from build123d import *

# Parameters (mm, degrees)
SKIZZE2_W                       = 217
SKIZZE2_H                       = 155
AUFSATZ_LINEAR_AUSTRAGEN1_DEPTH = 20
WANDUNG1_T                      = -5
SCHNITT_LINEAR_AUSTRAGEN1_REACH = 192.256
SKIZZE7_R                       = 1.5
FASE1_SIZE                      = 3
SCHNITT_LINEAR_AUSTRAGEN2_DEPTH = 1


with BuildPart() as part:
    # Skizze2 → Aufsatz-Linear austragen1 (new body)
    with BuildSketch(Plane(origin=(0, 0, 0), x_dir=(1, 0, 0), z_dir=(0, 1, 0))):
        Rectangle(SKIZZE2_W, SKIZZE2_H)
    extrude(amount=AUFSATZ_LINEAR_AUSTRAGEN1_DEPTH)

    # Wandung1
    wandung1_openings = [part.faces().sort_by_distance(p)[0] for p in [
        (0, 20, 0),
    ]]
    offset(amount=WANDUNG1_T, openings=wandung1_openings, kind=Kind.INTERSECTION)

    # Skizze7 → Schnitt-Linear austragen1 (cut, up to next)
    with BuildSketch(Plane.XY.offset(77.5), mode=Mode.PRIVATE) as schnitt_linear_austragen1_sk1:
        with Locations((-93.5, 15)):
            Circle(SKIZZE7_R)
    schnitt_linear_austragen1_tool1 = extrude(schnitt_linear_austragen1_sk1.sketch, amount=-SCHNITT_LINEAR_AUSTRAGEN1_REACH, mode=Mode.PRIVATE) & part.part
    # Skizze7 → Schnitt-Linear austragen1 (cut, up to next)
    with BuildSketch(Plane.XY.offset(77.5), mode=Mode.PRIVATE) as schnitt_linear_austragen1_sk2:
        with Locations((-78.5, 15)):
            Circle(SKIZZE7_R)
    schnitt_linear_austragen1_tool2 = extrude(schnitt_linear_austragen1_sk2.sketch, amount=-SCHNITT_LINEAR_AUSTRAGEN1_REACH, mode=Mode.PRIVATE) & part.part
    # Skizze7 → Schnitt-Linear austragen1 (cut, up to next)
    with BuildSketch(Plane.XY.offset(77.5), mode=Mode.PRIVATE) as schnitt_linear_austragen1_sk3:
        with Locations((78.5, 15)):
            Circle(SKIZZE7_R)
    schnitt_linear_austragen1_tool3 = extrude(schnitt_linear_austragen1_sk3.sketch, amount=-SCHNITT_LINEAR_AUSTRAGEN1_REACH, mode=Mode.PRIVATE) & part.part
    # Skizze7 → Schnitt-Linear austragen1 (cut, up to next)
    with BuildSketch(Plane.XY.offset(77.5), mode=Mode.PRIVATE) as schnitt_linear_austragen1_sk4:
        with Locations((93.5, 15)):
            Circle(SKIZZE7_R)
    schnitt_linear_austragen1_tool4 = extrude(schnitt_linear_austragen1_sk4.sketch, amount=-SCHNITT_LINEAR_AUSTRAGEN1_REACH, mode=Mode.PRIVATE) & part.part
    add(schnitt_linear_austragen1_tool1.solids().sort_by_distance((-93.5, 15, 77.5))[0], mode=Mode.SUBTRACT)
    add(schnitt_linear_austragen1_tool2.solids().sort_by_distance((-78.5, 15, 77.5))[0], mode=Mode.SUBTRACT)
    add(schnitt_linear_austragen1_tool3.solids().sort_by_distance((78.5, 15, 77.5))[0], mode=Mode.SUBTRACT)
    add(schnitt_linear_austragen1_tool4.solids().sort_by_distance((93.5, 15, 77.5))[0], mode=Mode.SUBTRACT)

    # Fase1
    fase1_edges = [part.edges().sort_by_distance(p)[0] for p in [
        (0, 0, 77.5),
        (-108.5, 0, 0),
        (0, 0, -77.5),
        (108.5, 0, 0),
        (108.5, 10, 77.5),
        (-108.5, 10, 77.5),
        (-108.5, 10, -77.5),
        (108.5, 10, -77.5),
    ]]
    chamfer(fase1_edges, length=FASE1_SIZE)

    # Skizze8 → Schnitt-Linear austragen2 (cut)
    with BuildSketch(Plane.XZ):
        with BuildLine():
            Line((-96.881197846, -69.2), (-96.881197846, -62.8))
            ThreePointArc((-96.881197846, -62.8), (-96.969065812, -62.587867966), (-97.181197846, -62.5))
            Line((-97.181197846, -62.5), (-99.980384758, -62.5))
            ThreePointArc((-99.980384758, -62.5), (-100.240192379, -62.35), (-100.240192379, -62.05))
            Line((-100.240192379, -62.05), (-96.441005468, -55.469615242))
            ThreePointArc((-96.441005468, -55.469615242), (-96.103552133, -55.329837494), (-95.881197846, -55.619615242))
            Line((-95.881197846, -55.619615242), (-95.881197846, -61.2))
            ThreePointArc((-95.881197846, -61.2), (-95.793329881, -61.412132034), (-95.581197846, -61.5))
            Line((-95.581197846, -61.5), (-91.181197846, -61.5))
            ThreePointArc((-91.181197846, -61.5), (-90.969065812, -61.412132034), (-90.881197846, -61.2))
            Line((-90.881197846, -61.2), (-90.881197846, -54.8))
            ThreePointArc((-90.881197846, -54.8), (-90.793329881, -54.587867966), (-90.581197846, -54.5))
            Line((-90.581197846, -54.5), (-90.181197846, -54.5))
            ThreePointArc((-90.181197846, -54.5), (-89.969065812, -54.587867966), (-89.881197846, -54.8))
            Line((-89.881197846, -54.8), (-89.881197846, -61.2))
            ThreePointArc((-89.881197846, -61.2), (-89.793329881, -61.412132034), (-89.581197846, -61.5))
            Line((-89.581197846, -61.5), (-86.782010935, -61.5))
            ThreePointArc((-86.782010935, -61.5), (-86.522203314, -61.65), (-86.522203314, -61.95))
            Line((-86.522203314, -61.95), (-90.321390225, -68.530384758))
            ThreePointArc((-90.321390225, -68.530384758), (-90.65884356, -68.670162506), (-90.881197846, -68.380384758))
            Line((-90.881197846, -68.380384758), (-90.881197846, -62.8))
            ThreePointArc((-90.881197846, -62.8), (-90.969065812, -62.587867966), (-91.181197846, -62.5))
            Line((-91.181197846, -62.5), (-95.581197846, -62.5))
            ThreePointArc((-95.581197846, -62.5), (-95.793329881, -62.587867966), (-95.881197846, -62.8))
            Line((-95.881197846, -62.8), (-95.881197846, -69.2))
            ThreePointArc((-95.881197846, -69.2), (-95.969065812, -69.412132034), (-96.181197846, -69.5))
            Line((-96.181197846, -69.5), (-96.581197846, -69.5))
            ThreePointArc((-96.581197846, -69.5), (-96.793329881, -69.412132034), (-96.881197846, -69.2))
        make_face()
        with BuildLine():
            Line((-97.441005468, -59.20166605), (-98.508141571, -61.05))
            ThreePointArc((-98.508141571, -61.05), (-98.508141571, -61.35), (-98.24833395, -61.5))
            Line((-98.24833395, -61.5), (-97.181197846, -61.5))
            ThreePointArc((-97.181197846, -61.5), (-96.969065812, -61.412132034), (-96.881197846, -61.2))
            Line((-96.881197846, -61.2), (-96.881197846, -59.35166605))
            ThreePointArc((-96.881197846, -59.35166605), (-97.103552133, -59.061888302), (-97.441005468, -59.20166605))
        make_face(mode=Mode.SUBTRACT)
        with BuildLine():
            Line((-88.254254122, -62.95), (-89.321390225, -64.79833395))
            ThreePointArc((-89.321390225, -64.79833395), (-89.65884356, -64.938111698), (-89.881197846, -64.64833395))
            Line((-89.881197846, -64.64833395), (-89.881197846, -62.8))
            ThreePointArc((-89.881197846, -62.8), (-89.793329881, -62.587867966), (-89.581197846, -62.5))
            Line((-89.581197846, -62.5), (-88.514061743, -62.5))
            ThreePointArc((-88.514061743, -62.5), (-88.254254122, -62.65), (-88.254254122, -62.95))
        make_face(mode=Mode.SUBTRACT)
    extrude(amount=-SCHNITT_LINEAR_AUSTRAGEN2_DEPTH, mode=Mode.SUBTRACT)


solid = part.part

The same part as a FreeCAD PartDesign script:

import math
import FreeCAD as App
import Part
import Sketcher
from FreeCAD import Vector
Q = App.Units.Quantity


def edges_at(feature, points):
    """Names of the edges that pass closest to the given points."""
    edges = feature.Shape.Edges
    near = lambda p: min(range(len(edges)), key=lambda i: edges[i].distToShape(Part.Vertex(*p))[0])
    return sorted({f"Edge{near(p) + 1}" for p in points})


def faces_at(feature, points):
    """Names of the faces that lie closest to the given points."""
    faces = feature.Shape.Faces
    near = lambda p: min(range(len(faces)), key=lambda i: faces[i].distToShape(Part.Vertex(*p))[0])
    return sorted({f"Face{near(p) + 1}" for p in points})


def add_polygon(sketch, points):
    """Adds a closed chain of lines whose ends are joined by coincident constraints."""
    first, n = sketch.GeometryCount, len(points)
    for a, b in zip(points, points[1:] + points[:1]):
        sketch.addGeometry(Part.LineSegment(App.Vector(*a, 0), App.Vector(*b, 0)), False)
    for i in range(n):
        sketch.addConstraint(Sketcher.Constraint("Coincident", first + i, 2, first + (i + 1) % n, 1))

doc = App.newDocument("Part")
body = doc.addObject("PartDesign::Body", "Body")

sketch1 = doc.addObject("Sketcher::SketchObject", "Sketch")
body.addObject(sketch1)
sketch1.AttachmentSupport = (doc.XZ_Plane, [""])
sketch1.MapMode = "FlatFace"
add_polygon(sketch1, [(-108.5, -77.5), (-108.5, 77.5), (108.5, 77.5), (108.5, -77.5)])
sketch1.addConstraint(Sketcher.Constraint("Vertical", 0))
sketch1.addConstraint(Sketcher.Constraint("Horizontal", 1))
sketch1.addConstraint(Sketcher.Constraint("Vertical", 2))
sketch1.addConstraint(Sketcher.Constraint("Horizontal", 3))
sketch1.addConstraint(Sketcher.Constraint("Symmetric", 0, 2, 2, 2, -1, 1))
sketch1.addConstraint(Sketcher.Constraint("DistanceX", 1, 1, 1, 2, Q("217 mm")))
sketch1.addConstraint(Sketcher.Constraint("DistanceY", 0, 1, 0, 2, Q("155 mm")))
pad1 = doc.addObject("PartDesign::Pad", "Pad")
body.addObject(pad1)
pad1.Profile = sketch1
pad1.Length = 20
pad1.Reversed = True
doc.recompute()

thickness = doc.addObject("PartDesign::Thickness", "Thickness")
body.addObject(thickness)
thickness.Base = (pad1, faces_at(pad1, [(0, 20, 0)]))
thickness.Value = 5
thickness.Reversed = True
thickness.Join = "Intersection"

sketch2 = doc.addObject("Sketcher::SketchObject", "Sketch001")
body.addObject(sketch2)
sketch2.AttachmentSupport = (doc.XY_Plane, [""])
sketch2.MapMode = "FlatFace"
sketch2.AttachmentOffset = App.Placement(Vector(0, 0, 77.5), App.Rotation())
sketch2.addGeometry(Part.Circle(Vector(-93.5, 15, 0), Vector(0, 0, 1), 1.5), False)
sketch2.addConstraint(Sketcher.Constraint("Diameter", 0, Q("3 mm")))
sketch2.addConstraint(Sketcher.Constraint("DistanceY", -1, 1, 0, 3, Q("15 mm")))
sketch2.addConstraint(Sketcher.Constraint("DistanceX", 0, 3, -1, 1, Q("93.5 mm")))
pocket1 = doc.addObject("PartDesign::Pocket", "Pocket")
body.addObject(pocket1)
pocket1.Profile = sketch2
pocket1.Type = "UpToFirst"

sketch3 = doc.addObject("Sketcher::SketchObject", "Sketch002")
body.addObject(sketch3)
sketch3.AttachmentSupport = (doc.XY_Plane, [""])
sketch3.MapMode = "FlatFace"
sketch3.AttachmentOffset = App.Placement(Vector(0, 0, 77.5), App.Rotation())
sketch3.addGeometry(Part.Circle(Vector(-78.5, 15, 0), Vector(0, 0, 1), 1.5), False)
sketch3.addConstraint(Sketcher.Constraint("Diameter", 0, Q("3 mm")))
sketch3.addConstraint(Sketcher.Constraint("DistanceY", -1, 1, 0, 3, Q("15 mm")))
sketch3.addConstraint(Sketcher.Constraint("DistanceX", 0, 3, -1, 1, Q("78.5 mm")))
pocket2 = doc.addObject("PartDesign::Pocket", "Pocket001")
body.addObject(pocket2)
pocket2.Profile = sketch3
pocket2.Type = "UpToFirst"

sketch4 = doc.addObject("Sketcher::SketchObject", "Sketch003")
body.addObject(sketch4)
sketch4.AttachmentSupport = (doc.XY_Plane, [""])
sketch4.MapMode = "FlatFace"
sketch4.AttachmentOffset = App.Placement(Vector(0, 0, 77.5), App.Rotation())
sketch4.addGeometry(Part.Circle(Vector(78.5, 15, 0), Vector(0, 0, 1), 1.5), False)
sketch4.addConstraint(Sketcher.Constraint("Diameter", 0, Q("3 mm")))
sketch4.addConstraint(Sketcher.Constraint("DistanceY", -1, 1, 0, 3, Q("15 mm")))
sketch4.addConstraint(Sketcher.Constraint("DistanceX", -1, 1, 0, 3, Q("78.5 mm")))
pocket3 = doc.addObject("PartDesign::Pocket", "Pocket002")
body.addObject(pocket3)
pocket3.Profile = sketch4
pocket3.Type = "UpToFirst"

sketch5 = doc.addObject("Sketcher::SketchObject", "Sketch004")
body.addObject(sketch5)
sketch5.AttachmentSupport = (doc.XY_Plane, [""])
sketch5.MapMode = "FlatFace"
sketch5.AttachmentOffset = App.Placement(Vector(0, 0, 77.5), App.Rotation())
sketch5.addGeometry(Part.Circle(Vector(93.5, 15, 0), Vector(0, 0, 1), 1.5), False)
sketch5.addConstraint(Sketcher.Constraint("Diameter", 0, Q("3 mm")))
sketch5.addConstraint(Sketcher.Constraint("DistanceY", -1, 1, 0, 3, Q("15 mm")))
sketch5.addConstraint(Sketcher.Constraint("DistanceX", -1, 1, 0, 3, Q("93.5 mm")))
pocket4 = doc.addObject("PartDesign::Pocket", "Pocket003")
body.addObject(pocket4)
pocket4.Profile = sketch5
pocket4.Type = "UpToFirst"
doc.recompute()

chamfer = doc.addObject("PartDesign::Chamfer", "Chamfer")
body.addObject(chamfer)
chamfer.Base = (pocket4, edges_at(pocket4, [
    (0, 0, 77.5),
    (-108.5, 0, 0),
    (0, 0, -77.5),
    (108.5, 0, 0),
    (108.5, 10, 77.5),
    (-108.5, 10, 77.5),
    (-108.5, 10, -77.5),
    (108.5, 10, -77.5),
]))
chamfer.Size = 3

sketch6 = doc.addObject("Sketcher::SketchObject", "Sketch005")
body.addObject(sketch6)
sketch6.AttachmentSupport = (doc.XZ_Plane, [""])
sketch6.MapMode = "FlatFace"
sketch6.addGeometry(Part.LineSegment(Vector(-96.881198, -62.8, 0), Vector(-96.881198, -69.2, 0)), False)
sketch6.addGeometry(Part.ArcOfCircle(Part.Circle(Vector(-96.581198, -69.2, 0), Vector(0, 0, 1), 0.3), math.radians(180), math.radians(270)), False)
sketch6.addGeometry(Part.LineSegment(Vector(-96.581198, -69.5, 0), Vector(-96.181198, -69.5, 0)), False)
sketch6.addGeometry(Part.ArcOfCircle(Part.Circle(Vector(-96.181198, -69.2, 0), Vector(0, 0, 1), 0.3), math.radians(-90), math.radians(0)), False)
sketch6.addGeometry(Part.LineSegment(Vector(-95.881198, -69.2, 0), Vector(-95.881198, -62.8, 0)), False)
sketch6.addGeometry(Part.ArcOfCircle(Part.Circle(Vector(-95.581198, -62.8, 0), Vector(0, 0, 1), 0.3), math.radians(90), math.radians(180)), False)
sketch6.addGeometry(Part.LineSegment(Vector(-95.581198, -62.5, 0), Vector(-91.181198, -62.5, 0)), False)
sketch6.addGeometry(Part.ArcOfCircle(Part.Circle(Vector(-91.181198, -62.8, 0), Vector(0, 0, 1), 0.3), math.radians(0), math.radians(90)), False)
sketch6.addGeometry(Part.LineSegment(Vector(-90.881198, -62.8, 0), Vector(-90.881198, -68.380385, 0)), False)
sketch6.addGeometry(Part.ArcOfCircle(Part.Circle(Vector(-90.581198, -68.380385, 0), Vector(0, 0, 1), 0.3), math.radians(180), math.radians(330)), False)
sketch6.addGeometry(Part.LineSegment(Vector(-90.32139, -68.530385, 0), Vector(-86.522203, -61.95, 0)), False)
sketch6.addGeometry(Part.ArcOfCircle(Part.Circle(Vector(-86.782011, -61.8, 0), Vector(0, 0, 1), 0.3), math.radians(-30), math.radians(90)), False)
sketch6.addGeometry(Part.LineSegment(Vector(-86.782011, -61.5, 0), Vector(-89.581198, -61.5, 0)), False)
sketch6.addGeometry(Part.ArcOfCircle(Part.Circle(Vector(-89.581198, -61.2, 0), Vector(0, 0, 1), 0.3), math.radians(180), math.radians(270)), False)
sketch6.addGeometry(Part.LineSegment(Vector(-89.881198, -61.2, 0), Vector(-89.881198, -54.8, 0)), False)
sketch6.addGeometry(Part.ArcOfCircle(Part.Circle(Vector(-90.181198, -54.8, 0), Vector(0, 0, 1), 0.3), math.radians(0), math.radians(90)), False)
sketch6.addGeometry(Part.LineSegment(Vector(-90.181198, -54.5, 0), Vector(-90.581198, -54.5, 0)), False)
sketch6.addGeometry(Part.ArcOfCircle(Part.Circle(Vector(-90.581198, -54.8, 0), Vector(0, 0, 1), 0.3), math.radians(90), math.radians(180)), False)
sketch6.addGeometry(Part.LineSegment(Vector(-90.881198, -54.8, 0), Vector(-90.881198, -61.2, 0)), False)
sketch6.addGeometry(Part.ArcOfCircle(Part.Circle(Vector(-91.181198, -61.2, 0), Vector(0, 0, 1), 0.3), math.radians(-90), math.radians(0)), False)
sketch6.addGeometry(Part.LineSegment(Vector(-91.181198, -61.5, 0), Vector(-95.581198, -61.5, 0)), False)
sketch6.addGeometry(Part.ArcOfCircle(Part.Circle(Vector(-95.581198, -61.2, 0), Vector(0, 0, 1), 0.3), math.radians(180), math.radians(270)), False)
sketch6.addGeometry(Part.LineSegment(Vector(-95.881198, -61.2, 0), Vector(-95.881198, -55.619615, 0)), False)
sketch6.addGeometry(Part.ArcOfCircle(Part.Circle(Vector(-96.181198, -55.619615, 0), Vector(0, 0, 1), 0.3), math.radians(0), math.radians(150)), False)
sketch6.addGeometry(Part.LineSegment(Vector(-96.441005, -55.469615, 0), Vector(-100.240192, -62.05, 0)), False)
sketch6.addGeometry(Part.ArcOfCircle(Part.Circle(Vector(-99.980385, -62.2, 0), Vector(0, 0, 1), 0.3), math.radians(150), math.radians(270)), False)
sketch6.addGeometry(Part.LineSegment(Vector(-99.980385, -62.5, 0), Vector(-97.181198, -62.5, 0)), False)
sketch6.addGeometry(Part.ArcOfCircle(Part.Circle(Vector(-97.181198, -62.8, 0), Vector(0, 0, 1), 0.3), math.radians(0), math.radians(90)), False)
sketch6.addGeometry(Part.LineSegment(Vector(-88.254254, -62.95, 0), Vector(-89.32139, -64.798334, 0)), False)
sketch6.addGeometry(Part.ArcOfCircle(Part.Circle(Vector(-89.581198, -64.648334, 0), Vector(0, 0, 1), 0.3), math.radians(180), math.radians(330)), False)
sketch6.addGeometry(Part.LineSegment(Vector(-89.881198, -64.648334, 0), Vector(-89.881198, -62.8, 0)), False)
sketch6.addGeometry(Part.ArcOfCircle(Part.Circle(Vector(-89.581198, -62.8, 0), Vector(0, 0, 1), 0.3), math.radians(90), math.radians(180)), False)
sketch6.addGeometry(Part.LineSegment(Vector(-89.581198, -62.5, 0), Vector(-88.514062, -62.5, 0)), False)
sketch6.addGeometry(Part.ArcOfCircle(Part.Circle(Vector(-88.514062, -62.8, 0), Vector(0, 0, 1), 0.3), math.radians(-30), math.radians(90)), False)
sketch6.addGeometry(Part.ArcOfCircle(Part.Circle(Vector(-97.181198, -59.351666, 0), Vector(0, 0, 1), 0.3), math.radians(0), math.radians(150)), False)
sketch6.addGeometry(Part.LineSegment(Vector(-96.881198, -59.351666, 0), Vector(-96.881198, -61.2, 0)), False)
sketch6.addGeometry(Part.ArcOfCircle(Part.Circle(Vector(-97.181198, -61.2, 0), Vector(0, 0, 1), 0.3), math.radians(-90), math.radians(0)), False)
sketch6.addGeometry(Part.LineSegment(Vector(-97.181198, -61.5, 0), Vector(-98.248334, -61.5, 0)), False)
sketch6.addGeometry(Part.ArcOfCircle(Part.Circle(Vector(-98.248334, -61.2, 0), Vector(0, 0, 1), 0.3), math.radians(150), math.radians(270)), False)
sketch6.addGeometry(Part.LineSegment(Vector(-98.508142, -61.05, 0), Vector(-97.441005, -59.201666, 0)), False)
sketch6.addConstraint(Sketcher.Constraint("Tangent", 0, 2, 1, 1))
sketch6.addConstraint(Sketcher.Constraint("Tangent", 1, 2, 2, 1))
sketch6.addConstraint(Sketcher.Constraint("Tangent", 2, 2, 3, 1))
sketch6.addConstraint(Sketcher.Constraint("Tangent", 3, 2, 4, 1))
sketch6.addConstraint(Sketcher.Constraint("Tangent", 4, 2, 5, 2))
sketch6.addConstraint(Sketcher.Constraint("Tangent", 5, 1, 6, 1))
sketch6.addConstraint(Sketcher.Constraint("Tangent", 6, 2, 7, 2))
sketch6.addConstraint(Sketcher.Constraint("Tangent", 7, 1, 8, 1))
sketch6.addConstraint(Sketcher.Constraint("Tangent", 8, 2, 9, 1))
sketch6.addConstraint(Sketcher.Constraint("Tangent", 9, 2, 10, 1))
sketch6.addConstraint(Sketcher.Constraint("Tangent", 10, 2, 11, 1))
sketch6.addConstraint(Sketcher.Constraint("Tangent", 11, 2, 12, 1))
sketch6.addConstraint(Sketcher.Constraint("Tangent", 12, 2, 13, 2))
sketch6.addConstraint(Sketcher.Constraint("Tangent", 13, 1, 14, 1))
sketch6.addConstraint(Sketcher.Constraint("Tangent", 14, 2, 15, 1))
sketch6.addConstraint(Sketcher.Constraint("Tangent", 15, 2, 16, 1))
sketch6.addConstraint(Sketcher.Constraint("Tangent", 16, 2, 17, 1))
sketch6.addConstraint(Sketcher.Constraint("Tangent", 17, 2, 18, 1))
sketch6.addConstraint(Sketcher.Constraint("Tangent", 18, 2, 19, 2))
sketch6.addConstraint(Sketcher.Constraint("Tangent", 19, 1, 20, 1))
sketch6.addConstraint(Sketcher.Constraint("Tangent", 20, 2, 21, 2))
sketch6.addConstraint(Sketcher.Constraint("Tangent", 21, 1, 22, 1))
sketch6.addConstraint(Sketcher.Constraint("Tangent", 22, 2, 23, 1))
sketch6.addConstraint(Sketcher.Constraint("Tangent", 23, 2, 24, 1))
sketch6.addConstraint(Sketcher.Constraint("Tangent", 24, 2, 25, 1))
sketch6.addConstraint(Sketcher.Constraint("Tangent", 25, 2, 26, 1))
sketch6.addConstraint(Sketcher.Constraint("Tangent", 26, 2, 27, 2))
sketch6.addConstraint(Sketcher.Constraint("Tangent", 27, 1, 0, 1))
sketch6.addConstraint(Sketcher.Constraint("Tangent", 28, 2, 29, 2))
sketch6.addConstraint(Sketcher.Constraint("Tangent", 29, 1, 30, 1))
sketch6.addConstraint(Sketcher.Constraint("Tangent", 30, 2, 31, 2))
sketch6.addConstraint(Sketcher.Constraint("Tangent", 31, 1, 32, 1))
sketch6.addConstraint(Sketcher.Constraint("Tangent", 32, 2, 33, 2))
sketch6.addConstraint(Sketcher.Constraint("Tangent", 33, 1, 28, 1))
sketch6.addConstraint(Sketcher.Constraint("Tangent", 34, 1, 35, 1))
sketch6.addConstraint(Sketcher.Constraint("Tangent", 35, 2, 36, 2))
sketch6.addConstraint(Sketcher.Constraint("Tangent", 36, 1, 37, 1))
sketch6.addConstraint(Sketcher.Constraint("Tangent", 37, 2, 38, 2))
sketch6.addConstraint(Sketcher.Constraint("Tangent", 38, 1, 39, 1))
sketch6.addConstraint(Sketcher.Constraint("Tangent", 39, 2, 34, 2))
sketch6.addConstraint(Sketcher.Constraint("Vertical", 0))
sketch6.addConstraint(Sketcher.Constraint("Horizontal", 2))
sketch6.addConstraint(Sketcher.Constraint("Vertical", 4))
sketch6.addConstraint(Sketcher.Constraint("Horizontal", 6))
sketch6.addConstraint(Sketcher.Constraint("Vertical", 8))
sketch6.addConstraint(Sketcher.Constraint("Horizontal", 12))
sketch6.addConstraint(Sketcher.Constraint("Vertical", 14))
sketch6.addConstraint(Sketcher.Constraint("Horizontal", 16))
sketch6.addConstraint(Sketcher.Constraint("Vertical", 18))
sketch6.addConstraint(Sketcher.Constraint("Horizontal", 20))
sketch6.addConstraint(Sketcher.Constraint("Vertical", 22))
sketch6.addConstraint(Sketcher.Constraint("Horizontal", 26))
sketch6.addConstraint(Sketcher.Constraint("Vertical", 30))
sketch6.addConstraint(Sketcher.Constraint("Horizontal", 32))
sketch6.addConstraint(Sketcher.Constraint("Vertical", 35))
sketch6.addConstraint(Sketcher.Constraint("Horizontal", 37))
sketch6.addConstraint(Sketcher.Constraint("Equal", 1, 3))
sketch6.addConstraint(Sketcher.Constraint("Equal", 3, 5))
sketch6.addConstraint(Sketcher.Constraint("Equal", 5, 7))
sketch6.addConstraint(Sketcher.Constraint("Equal", 7, 9))
sketch6.addConstraint(Sketcher.Constraint("Equal", 9, 11))
sketch6.addConstraint(Sketcher.Constraint("Equal", 11, 13))
sketch6.addConstraint(Sketcher.Constraint("Equal", 13, 15))
sketch6.addConstraint(Sketcher.Constraint("Equal", 15, 17))
sketch6.addConstraint(Sketcher.Constraint("Equal", 17, 19))
sketch6.addConstraint(Sketcher.Constraint("Equal", 19, 21))
sketch6.addConstraint(Sketcher.Constraint("Equal", 21, 23))
sketch6.addConstraint(Sketcher.Constraint("Equal", 23, 25))
sketch6.addConstraint(Sketcher.Constraint("Equal", 25, 27))
sketch6.addConstraint(Sketcher.Constraint("Equal", 27, 29))
sketch6.addConstraint(Sketcher.Constraint("Equal", 29, 31))
sketch6.addConstraint(Sketcher.Constraint("Equal", 31, 33))
sketch6.addConstraint(Sketcher.Constraint("Equal", 33, 34))
sketch6.addConstraint(Sketcher.Constraint("Equal", 34, 36))
sketch6.addConstraint(Sketcher.Constraint("Equal", 36, 38))
sketch6.addConstraint(Sketcher.Constraint("Parallel", 10, 24))
sketch6.addConstraint(Sketcher.Constraint("Parallel", 24, 28))
sketch6.addConstraint(Sketcher.Constraint("Parallel", 28, 39))
sketch6.addConstraint(Sketcher.Constraint("Horizontal", 13, 3, 19, 3))
sketch6.addConstraint(Sketcher.Constraint("Horizontal", 7, 3, 27, 3))
sketch6.addConstraint(Sketcher.Constraint("Horizontal", 27, 3, 31, 3))
sketch6.addConstraint(Sketcher.Constraint("Horizontal", 21, 3, 36, 3))
sketch6.addConstraint(Sketcher.Constraint("Vertical", 9, 3, 17, 3))
sketch6.addConstraint(Sketcher.Constraint("Vertical", 5, 3, 21, 3))
sketch6.addConstraint(Sketcher.Constraint("Vertical", 13, 3, 29, 3))
sketch6.addConstraint(Sketcher.Constraint("Vertical", 27, 3, 34, 3))
sketch6.addConstraint(Sketcher.Constraint("Equal", 2, 16))
sketch6.addConstraint(Sketcher.Constraint("Equal", 12, 26))
sketch6.addConstraint(Sketcher.Constraint("Equal", 32, 37))
sketch6.addConstraint(Sketcher.Constraint("Equal", 4, 14))
sketch6.addConstraint(Sketcher.Constraint("Radius", 1, Q("0.3 mm")))
sketch6.addConstraint(Sketcher.Constraint("Angle", 10, Q("60 deg")))
sketch6.addConstraint(Sketcher.Constraint("DistanceX", 2, 1, 2, 2, Q("0.4 mm")))
sketch6.addConstraint(Sketcher.Constraint("DistanceX", 6, 1, 6, 2, Q("4.4 mm")))
sketch6.addConstraint(Sketcher.Constraint("DistanceY", 0, 2, 0, 1, Q("6.4 mm")))
sketch6.addConstraint(Sketcher.Constraint("DistanceY", 7, 3, 11, 3, Q("1 mm")))
sketch6.addConstraint(Sketcher.Constraint("DistanceY", 1, 3, -1, 1, Q("69.2 mm")))
sketch6.addConstraint(Sketcher.Constraint("DistanceX", 12, 2, 12, 1, Q("2.799187 mm")))
sketch6.addConstraint(Sketcher.Constraint("DistanceX", 32, 1, 32, 2, Q("1.067136 mm")))
sketch6.addConstraint(Sketcher.Constraint("DistanceX", 11, 3, -1, 1, Q("86.782011 mm")))
pocket5 = doc.addObject("PartDesign::Pocket", "Pocket004")
body.addObject(pocket5)
pocket5.Profile = sketch6
pocket5.Length = 1

doc.recompute()
